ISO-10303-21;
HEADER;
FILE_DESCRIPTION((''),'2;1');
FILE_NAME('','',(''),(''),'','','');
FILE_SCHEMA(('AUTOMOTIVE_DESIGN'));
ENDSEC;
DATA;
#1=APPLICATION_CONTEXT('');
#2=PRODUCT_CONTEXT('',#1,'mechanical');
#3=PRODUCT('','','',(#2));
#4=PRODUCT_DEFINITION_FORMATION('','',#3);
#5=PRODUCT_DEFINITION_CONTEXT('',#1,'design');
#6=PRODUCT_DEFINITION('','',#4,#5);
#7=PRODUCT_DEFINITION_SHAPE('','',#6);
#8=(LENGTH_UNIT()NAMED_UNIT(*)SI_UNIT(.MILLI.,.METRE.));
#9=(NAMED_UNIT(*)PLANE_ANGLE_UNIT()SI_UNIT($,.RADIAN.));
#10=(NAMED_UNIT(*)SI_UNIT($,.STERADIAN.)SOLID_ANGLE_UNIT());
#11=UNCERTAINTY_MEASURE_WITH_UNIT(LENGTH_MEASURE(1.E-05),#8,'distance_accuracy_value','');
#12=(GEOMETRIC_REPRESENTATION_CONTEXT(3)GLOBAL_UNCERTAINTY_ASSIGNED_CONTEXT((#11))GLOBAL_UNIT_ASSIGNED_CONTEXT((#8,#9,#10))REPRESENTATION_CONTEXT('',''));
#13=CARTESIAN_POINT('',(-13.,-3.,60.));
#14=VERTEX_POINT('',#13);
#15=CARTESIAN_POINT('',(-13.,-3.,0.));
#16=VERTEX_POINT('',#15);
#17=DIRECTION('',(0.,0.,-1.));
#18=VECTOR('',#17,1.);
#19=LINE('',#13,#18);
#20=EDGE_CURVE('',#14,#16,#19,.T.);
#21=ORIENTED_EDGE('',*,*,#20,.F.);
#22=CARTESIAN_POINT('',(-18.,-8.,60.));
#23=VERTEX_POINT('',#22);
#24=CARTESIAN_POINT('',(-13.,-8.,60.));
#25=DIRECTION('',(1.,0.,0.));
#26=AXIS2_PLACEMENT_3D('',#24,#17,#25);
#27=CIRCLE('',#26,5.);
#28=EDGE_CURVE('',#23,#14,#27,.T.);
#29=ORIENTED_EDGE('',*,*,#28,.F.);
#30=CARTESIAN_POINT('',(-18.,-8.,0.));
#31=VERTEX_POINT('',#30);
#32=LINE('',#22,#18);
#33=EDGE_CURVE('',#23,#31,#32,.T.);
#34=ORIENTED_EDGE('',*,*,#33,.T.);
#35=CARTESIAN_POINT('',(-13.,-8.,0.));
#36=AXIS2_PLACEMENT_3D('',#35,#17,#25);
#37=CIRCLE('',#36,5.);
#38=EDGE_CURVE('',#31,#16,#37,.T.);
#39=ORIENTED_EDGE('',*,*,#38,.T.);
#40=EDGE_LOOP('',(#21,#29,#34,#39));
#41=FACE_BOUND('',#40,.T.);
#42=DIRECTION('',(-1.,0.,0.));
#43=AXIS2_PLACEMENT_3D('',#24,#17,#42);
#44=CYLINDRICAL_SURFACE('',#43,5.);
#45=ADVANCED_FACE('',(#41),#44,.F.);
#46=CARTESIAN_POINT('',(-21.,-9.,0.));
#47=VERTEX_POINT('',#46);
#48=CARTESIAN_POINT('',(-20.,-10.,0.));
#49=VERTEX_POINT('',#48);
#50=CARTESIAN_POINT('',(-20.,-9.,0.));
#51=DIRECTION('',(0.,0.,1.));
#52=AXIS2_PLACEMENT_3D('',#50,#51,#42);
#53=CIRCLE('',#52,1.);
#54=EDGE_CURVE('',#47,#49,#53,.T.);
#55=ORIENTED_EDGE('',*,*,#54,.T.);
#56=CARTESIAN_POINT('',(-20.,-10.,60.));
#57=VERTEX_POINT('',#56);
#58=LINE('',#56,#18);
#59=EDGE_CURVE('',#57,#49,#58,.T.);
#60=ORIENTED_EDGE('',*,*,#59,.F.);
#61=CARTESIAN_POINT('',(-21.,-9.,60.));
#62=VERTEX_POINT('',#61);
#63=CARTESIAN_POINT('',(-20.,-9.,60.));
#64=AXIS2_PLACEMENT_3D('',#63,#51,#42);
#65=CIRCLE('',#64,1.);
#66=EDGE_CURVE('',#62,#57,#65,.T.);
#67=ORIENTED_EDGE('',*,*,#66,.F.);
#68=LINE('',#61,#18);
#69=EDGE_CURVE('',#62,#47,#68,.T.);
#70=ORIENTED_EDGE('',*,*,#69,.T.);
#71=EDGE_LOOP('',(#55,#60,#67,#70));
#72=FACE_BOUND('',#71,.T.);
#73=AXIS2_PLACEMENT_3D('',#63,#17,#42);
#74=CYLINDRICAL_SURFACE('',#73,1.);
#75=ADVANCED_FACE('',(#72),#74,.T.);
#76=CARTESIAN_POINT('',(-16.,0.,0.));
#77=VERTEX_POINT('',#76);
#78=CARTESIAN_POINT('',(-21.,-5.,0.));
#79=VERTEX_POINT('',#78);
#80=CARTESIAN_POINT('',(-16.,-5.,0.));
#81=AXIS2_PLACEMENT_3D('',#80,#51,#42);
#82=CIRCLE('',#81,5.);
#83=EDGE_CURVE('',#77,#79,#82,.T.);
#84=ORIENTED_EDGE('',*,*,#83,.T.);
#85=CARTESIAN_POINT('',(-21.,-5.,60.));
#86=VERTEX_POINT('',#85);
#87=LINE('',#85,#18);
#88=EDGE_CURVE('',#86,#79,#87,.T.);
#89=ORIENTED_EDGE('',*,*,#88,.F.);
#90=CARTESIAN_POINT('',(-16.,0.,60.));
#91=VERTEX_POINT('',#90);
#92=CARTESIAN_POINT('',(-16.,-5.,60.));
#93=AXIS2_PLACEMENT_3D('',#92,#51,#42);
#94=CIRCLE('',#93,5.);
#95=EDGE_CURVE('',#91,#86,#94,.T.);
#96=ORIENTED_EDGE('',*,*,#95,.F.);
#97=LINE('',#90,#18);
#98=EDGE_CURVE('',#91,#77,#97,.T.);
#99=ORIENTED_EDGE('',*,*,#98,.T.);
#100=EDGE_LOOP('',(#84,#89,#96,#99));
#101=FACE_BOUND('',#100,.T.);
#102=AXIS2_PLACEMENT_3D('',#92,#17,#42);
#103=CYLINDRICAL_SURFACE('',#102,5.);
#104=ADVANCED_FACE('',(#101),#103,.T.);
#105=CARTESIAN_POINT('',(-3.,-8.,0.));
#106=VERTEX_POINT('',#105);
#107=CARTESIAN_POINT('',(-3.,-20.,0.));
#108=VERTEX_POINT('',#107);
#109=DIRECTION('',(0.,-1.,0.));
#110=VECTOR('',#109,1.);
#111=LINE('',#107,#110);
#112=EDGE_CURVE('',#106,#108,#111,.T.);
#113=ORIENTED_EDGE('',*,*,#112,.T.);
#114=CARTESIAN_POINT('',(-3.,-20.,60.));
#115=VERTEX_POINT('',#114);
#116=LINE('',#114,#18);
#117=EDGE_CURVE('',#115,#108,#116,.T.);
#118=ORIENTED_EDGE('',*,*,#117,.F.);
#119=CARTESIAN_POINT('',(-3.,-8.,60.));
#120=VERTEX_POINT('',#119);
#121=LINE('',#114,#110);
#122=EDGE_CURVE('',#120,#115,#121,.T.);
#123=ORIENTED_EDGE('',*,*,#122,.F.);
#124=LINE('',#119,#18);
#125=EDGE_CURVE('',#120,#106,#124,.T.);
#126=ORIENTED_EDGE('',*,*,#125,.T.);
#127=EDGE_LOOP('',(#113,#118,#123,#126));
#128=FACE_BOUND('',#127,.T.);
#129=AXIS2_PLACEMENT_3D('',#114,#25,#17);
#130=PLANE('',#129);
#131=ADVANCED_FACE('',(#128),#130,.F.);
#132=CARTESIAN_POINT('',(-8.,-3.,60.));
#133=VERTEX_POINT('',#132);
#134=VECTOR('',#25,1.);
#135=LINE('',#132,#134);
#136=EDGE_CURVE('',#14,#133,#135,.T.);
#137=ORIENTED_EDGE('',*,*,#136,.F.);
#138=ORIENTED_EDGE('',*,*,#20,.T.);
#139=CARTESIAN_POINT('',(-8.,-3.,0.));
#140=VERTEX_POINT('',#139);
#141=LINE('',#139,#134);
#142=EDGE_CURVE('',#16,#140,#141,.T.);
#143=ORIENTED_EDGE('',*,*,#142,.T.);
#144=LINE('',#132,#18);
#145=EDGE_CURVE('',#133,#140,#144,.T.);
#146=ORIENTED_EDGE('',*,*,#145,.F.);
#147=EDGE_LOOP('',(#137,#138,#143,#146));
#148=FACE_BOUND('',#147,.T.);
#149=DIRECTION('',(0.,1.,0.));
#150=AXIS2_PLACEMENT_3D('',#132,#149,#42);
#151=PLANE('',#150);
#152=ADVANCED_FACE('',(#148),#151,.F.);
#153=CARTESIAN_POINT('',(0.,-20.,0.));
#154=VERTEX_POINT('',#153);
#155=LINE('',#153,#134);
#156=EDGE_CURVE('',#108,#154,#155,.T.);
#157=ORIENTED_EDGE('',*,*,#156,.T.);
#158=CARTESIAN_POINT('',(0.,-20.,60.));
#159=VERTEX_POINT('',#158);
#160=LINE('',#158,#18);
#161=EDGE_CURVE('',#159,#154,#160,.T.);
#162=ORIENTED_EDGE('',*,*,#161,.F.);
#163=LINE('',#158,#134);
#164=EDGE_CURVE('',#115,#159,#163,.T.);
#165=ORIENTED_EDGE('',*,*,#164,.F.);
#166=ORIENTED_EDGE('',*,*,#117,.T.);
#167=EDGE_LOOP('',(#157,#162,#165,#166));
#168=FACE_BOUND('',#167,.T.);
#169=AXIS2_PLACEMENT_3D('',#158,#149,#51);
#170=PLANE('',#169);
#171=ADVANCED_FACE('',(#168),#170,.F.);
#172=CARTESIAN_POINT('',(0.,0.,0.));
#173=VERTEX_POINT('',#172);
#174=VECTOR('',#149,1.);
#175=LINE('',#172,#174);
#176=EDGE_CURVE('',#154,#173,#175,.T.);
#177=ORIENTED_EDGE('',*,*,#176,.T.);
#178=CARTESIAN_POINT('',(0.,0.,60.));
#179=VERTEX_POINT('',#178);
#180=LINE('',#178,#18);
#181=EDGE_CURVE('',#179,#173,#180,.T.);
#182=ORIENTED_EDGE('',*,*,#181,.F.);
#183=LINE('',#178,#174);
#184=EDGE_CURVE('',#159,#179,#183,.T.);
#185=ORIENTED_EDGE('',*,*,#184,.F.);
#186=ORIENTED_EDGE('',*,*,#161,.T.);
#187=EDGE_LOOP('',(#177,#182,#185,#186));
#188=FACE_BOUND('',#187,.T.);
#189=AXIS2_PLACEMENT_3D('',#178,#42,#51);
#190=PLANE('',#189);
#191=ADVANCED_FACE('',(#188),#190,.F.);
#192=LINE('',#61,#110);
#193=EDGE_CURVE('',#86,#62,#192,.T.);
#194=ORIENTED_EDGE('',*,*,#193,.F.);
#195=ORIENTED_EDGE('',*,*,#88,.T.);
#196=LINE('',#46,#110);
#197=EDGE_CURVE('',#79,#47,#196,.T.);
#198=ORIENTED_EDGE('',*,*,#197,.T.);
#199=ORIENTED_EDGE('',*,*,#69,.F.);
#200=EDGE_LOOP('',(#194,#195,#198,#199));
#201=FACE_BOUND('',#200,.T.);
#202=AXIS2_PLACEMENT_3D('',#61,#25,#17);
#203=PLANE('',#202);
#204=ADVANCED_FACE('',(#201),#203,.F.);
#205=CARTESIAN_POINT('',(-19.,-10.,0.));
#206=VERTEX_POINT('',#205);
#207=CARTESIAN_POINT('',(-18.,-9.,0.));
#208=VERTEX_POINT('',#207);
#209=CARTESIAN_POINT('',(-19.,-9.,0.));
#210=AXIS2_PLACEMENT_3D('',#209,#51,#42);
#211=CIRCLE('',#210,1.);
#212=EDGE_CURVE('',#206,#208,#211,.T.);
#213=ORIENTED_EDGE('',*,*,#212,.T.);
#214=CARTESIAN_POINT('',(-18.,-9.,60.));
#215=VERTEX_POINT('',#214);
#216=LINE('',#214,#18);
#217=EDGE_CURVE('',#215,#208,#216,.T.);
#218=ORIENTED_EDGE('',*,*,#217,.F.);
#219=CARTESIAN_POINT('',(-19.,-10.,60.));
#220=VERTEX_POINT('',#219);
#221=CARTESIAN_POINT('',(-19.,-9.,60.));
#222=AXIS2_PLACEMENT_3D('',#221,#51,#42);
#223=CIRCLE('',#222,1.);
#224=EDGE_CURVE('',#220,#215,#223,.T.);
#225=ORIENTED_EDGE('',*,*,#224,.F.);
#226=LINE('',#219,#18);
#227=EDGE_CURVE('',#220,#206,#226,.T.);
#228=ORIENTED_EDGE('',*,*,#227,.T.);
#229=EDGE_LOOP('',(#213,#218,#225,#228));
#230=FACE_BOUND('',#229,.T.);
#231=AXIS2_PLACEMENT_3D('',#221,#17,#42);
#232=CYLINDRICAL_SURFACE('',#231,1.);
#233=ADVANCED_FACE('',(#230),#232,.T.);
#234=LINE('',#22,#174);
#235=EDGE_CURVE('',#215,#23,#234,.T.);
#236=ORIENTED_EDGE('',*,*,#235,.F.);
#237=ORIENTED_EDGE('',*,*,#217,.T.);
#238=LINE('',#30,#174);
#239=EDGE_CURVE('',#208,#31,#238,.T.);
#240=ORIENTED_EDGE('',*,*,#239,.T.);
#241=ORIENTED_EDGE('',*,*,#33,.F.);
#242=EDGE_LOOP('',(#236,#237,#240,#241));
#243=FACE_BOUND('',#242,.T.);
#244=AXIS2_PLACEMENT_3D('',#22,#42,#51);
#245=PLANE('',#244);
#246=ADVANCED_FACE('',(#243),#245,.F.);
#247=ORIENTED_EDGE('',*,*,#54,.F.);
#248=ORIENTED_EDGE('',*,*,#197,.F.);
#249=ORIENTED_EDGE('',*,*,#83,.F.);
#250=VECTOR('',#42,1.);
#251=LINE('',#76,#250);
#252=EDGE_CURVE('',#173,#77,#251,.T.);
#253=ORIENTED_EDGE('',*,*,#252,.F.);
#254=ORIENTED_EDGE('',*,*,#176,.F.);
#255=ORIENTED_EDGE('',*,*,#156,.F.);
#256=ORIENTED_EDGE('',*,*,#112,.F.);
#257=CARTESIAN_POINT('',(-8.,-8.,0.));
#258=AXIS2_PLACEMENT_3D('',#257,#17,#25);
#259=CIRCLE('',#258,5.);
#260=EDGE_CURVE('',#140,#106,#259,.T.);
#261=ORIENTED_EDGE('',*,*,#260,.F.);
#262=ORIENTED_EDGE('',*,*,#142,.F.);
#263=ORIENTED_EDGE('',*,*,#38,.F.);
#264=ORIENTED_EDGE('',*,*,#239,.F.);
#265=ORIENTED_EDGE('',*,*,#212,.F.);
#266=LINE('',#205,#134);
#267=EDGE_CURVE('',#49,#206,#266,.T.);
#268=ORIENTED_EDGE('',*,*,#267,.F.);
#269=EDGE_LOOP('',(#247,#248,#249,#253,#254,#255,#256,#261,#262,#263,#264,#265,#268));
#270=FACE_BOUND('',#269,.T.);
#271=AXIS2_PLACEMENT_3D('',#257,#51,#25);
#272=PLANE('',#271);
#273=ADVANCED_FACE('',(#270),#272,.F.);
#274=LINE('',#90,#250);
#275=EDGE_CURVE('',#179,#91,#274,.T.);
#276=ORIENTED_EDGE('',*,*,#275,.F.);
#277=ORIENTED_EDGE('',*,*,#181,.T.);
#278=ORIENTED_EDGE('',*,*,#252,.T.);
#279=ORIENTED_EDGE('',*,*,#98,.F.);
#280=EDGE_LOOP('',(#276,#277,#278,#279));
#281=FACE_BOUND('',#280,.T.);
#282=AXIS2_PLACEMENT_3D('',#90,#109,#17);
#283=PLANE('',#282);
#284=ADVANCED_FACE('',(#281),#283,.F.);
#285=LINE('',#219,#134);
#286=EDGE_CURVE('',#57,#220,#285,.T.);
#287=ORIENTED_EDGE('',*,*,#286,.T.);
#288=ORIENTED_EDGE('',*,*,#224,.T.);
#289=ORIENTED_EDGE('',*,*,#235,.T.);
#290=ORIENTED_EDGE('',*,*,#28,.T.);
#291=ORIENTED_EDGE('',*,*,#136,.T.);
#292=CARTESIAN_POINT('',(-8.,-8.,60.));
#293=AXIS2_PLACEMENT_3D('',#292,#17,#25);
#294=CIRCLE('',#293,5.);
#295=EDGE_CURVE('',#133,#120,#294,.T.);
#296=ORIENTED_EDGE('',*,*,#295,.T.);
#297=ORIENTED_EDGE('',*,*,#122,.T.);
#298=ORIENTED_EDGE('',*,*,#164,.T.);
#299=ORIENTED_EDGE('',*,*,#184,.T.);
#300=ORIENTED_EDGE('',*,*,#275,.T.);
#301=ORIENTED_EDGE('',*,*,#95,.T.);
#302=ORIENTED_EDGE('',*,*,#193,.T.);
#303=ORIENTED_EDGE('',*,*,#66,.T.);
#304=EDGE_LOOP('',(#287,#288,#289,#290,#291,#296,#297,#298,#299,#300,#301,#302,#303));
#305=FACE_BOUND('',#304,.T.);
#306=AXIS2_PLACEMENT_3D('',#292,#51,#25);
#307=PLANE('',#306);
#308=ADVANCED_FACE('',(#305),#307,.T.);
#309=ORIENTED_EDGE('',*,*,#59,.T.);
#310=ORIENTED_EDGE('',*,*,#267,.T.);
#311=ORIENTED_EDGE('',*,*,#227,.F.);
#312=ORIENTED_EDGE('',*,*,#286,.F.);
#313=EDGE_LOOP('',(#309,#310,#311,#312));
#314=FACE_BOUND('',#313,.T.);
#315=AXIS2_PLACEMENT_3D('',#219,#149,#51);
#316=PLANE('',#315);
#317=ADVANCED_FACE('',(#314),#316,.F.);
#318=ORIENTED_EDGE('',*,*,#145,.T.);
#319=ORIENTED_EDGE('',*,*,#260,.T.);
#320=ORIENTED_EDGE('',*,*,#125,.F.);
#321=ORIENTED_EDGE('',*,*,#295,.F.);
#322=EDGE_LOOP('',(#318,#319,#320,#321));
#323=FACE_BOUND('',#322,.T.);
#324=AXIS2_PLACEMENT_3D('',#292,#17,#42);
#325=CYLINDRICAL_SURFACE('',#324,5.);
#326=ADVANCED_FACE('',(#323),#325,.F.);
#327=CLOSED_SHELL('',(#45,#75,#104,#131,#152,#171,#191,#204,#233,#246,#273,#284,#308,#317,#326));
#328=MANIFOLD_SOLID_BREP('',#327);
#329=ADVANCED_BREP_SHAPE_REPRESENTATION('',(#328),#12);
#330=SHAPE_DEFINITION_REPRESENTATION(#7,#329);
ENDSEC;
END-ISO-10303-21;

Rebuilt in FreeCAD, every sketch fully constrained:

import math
import FreeCAD as App
import Part
import Sketcher

doc = App.newDocument("Part")
body = doc.addObject("PartDesign::Body", "Body")

# Sketch on XY plane
sketch1 = body.newObject("Sketcher::SketchObject", "Sketch")
sketch1.AttachmentSupport = (doc.getObject("XY_Plane"), [""])
sketch1.MapMode = "FlatFace"
sketch1.addGeometry(Part.LineSegment(App.Vector(0, -20, 0), App.Vector(0, 0, 0)), False)
sketch1.addGeometry(Part.LineSegment(App.Vector(0, 0, 0), App.Vector(-16, 0, 0)), False)
sketch1.addGeometry(Part.ArcOfCircle(Part.Circle(App.Vector(-16, -5, 0), App.Vector(0, 0, 1), 5), math.radians(90), math.radians(180)), False)
sketch1.addGeometry(Part.LineSegment(App.Vector(-21, -5, 0), App.Vector(-21, -9, 0)), False)
sketch1.addGeometry(Part.ArcOfCircle(Part.Circle(App.Vector(-20, -9, 0), App.Vector(0, 0, 1), 1), math.radians(-180), math.radians(-90)), False)
sketch1.addGeometry(Part.LineSegment(App.Vector(-20, -10, 0), App.Vector(-19, -10, 0)), False)
sketch1.addGeometry(Part.ArcOfCircle(Part.Circle(App.Vector(-19, -9, 0), App.Vector(0, 0, 1), 1), math.radians(-90), math.radians(0)), False)
sketch1.addGeometry(Part.LineSegment(App.Vector(-18, -9, 0), App.Vector(-18, -8, 0)), False)
sketch1.addGeometry(Part.ArcOfCircle(Part.Circle(App.Vector(-13, -8, 0), App.Vector(0, 0, 1), 5), math.radians(90), math.radians(180)), False)
sketch1.addGeometry(Part.LineSegment(App.Vector(-13, -3, 0), App.Vector(-8, -3, 0)), False)
sketch1.addGeometry(Part.ArcOfCircle(Part.Circle(App.Vector(-8, -8, 0), App.Vector(0, 0, 1), 5), math.radians(0), math.radians(90)), False)
sketch1.addGeometry(Part.LineSegment(App.Vector(-3, -8, 0), App.Vector(-3, -20, 0)), False)
sketch1.addGeometry(Part.LineSegment(App.Vector(-3, -20, 0), App.Vector(0, -20, 0)), False)
sketch1.addConstraint(Sketcher.Constraint("Coincident", 0, 2, 1, 1))
sketch1.addConstraint(Sketcher.Constraint("Tangent", 1, 2, 2, 1))
sketch1.addConstraint(Sketcher.Constraint("Tangent", 2, 2, 3, 1))
sketch1.addConstraint(Sketcher.Constraint("Tangent", 3, 2, 4, 1))
sketch1.addConstraint(Sketcher.Constraint("Tangent", 4, 2, 5, 1))
sketch1.addConstraint(Sketcher.Constraint("Tangent", 5, 2, 6, 1))
sketch1.addConstraint(Sketcher.Constraint("Tangent", 6, 2, 7, 1))
sketch1.addConstraint(Sketcher.Constraint("Tangent", 7, 2, 8, 2))
sketch1.addConstraint(Sketcher.Constraint("Tangent", 8, 1, 9, 1))
sketch1.addConstraint(Sketcher.Constraint("Tangent", 9, 2, 10, 2))
sketch1.addConstraint(Sketcher.Constraint("Tangent", 10, 1, 11, 1))
sketch1.addConstraint(Sketcher.Constraint("Coincident", 11, 2, 12, 1))
sketch1.addConstraint(Sketcher.Constraint("Coincident", 12, 2, 0, 1))
sketch1.addConstraint(Sketcher.Constraint("Vertical", 0))
sketch1.addConstraint(Sketcher.Constraint("Horizontal", 1))
sketch1.addConstraint(Sketcher.Constraint("Vertical", 3))
sketch1.addConstraint(Sketcher.Constraint("Horizontal", 5))
sketch1.addConstraint(Sketcher.Constraint("Vertical", 7))
sketch1.addConstraint(Sketcher.Constraint("Horizontal", 9))
sketch1.addConstraint(Sketcher.Constraint("Vertical", 11))
sketch1.addConstraint(Sketcher.Constraint("Horizontal", 12))
sketch1.addConstraint(Sketcher.Constraint("Coincident", 0, 2, -1, 1))
sketch1.addConstraint(Sketcher.Constraint("Equal", 4, 6))
sketch1.addConstraint(Sketcher.Constraint("Equal", 2, 8))
sketch1.addConstraint(Sketcher.Constraint("Equal", 8, 10))
sketch1.addConstraint(Sketcher.Constraint("Equal", 5, 7))
sketch1.addConstraint(Sketcher.Constraint("Radius", 2, 5.0))
sketch1.addConstraint(Sketcher.Constraint("Radius", 4, 1.0))
sketch1.addConstraint(Sketcher.Constraint("DistanceX", 1, 2, 1, 1, 16.0))
sketch1.addConstraint(Sketcher.Constraint("DistanceX", 5, 1, 5, 2, 1.0))
sketch1.addConstraint(Sketcher.Constraint("DistanceX", 9, 1, 9, 2, 5.0))
sketch1.addConstraint(Sketcher.Constraint("DistanceY", 0, 1, 0, 2, 20.0))
sketch1.addConstraint(Sketcher.Constraint("DistanceY", 3, 2, 3, 1, 4.0))
pad1 = body.newObject("PartDesign::Pad", "Pad")
pad1.Profile = sketch1
pad1.Length = 60

doc.recompute()
